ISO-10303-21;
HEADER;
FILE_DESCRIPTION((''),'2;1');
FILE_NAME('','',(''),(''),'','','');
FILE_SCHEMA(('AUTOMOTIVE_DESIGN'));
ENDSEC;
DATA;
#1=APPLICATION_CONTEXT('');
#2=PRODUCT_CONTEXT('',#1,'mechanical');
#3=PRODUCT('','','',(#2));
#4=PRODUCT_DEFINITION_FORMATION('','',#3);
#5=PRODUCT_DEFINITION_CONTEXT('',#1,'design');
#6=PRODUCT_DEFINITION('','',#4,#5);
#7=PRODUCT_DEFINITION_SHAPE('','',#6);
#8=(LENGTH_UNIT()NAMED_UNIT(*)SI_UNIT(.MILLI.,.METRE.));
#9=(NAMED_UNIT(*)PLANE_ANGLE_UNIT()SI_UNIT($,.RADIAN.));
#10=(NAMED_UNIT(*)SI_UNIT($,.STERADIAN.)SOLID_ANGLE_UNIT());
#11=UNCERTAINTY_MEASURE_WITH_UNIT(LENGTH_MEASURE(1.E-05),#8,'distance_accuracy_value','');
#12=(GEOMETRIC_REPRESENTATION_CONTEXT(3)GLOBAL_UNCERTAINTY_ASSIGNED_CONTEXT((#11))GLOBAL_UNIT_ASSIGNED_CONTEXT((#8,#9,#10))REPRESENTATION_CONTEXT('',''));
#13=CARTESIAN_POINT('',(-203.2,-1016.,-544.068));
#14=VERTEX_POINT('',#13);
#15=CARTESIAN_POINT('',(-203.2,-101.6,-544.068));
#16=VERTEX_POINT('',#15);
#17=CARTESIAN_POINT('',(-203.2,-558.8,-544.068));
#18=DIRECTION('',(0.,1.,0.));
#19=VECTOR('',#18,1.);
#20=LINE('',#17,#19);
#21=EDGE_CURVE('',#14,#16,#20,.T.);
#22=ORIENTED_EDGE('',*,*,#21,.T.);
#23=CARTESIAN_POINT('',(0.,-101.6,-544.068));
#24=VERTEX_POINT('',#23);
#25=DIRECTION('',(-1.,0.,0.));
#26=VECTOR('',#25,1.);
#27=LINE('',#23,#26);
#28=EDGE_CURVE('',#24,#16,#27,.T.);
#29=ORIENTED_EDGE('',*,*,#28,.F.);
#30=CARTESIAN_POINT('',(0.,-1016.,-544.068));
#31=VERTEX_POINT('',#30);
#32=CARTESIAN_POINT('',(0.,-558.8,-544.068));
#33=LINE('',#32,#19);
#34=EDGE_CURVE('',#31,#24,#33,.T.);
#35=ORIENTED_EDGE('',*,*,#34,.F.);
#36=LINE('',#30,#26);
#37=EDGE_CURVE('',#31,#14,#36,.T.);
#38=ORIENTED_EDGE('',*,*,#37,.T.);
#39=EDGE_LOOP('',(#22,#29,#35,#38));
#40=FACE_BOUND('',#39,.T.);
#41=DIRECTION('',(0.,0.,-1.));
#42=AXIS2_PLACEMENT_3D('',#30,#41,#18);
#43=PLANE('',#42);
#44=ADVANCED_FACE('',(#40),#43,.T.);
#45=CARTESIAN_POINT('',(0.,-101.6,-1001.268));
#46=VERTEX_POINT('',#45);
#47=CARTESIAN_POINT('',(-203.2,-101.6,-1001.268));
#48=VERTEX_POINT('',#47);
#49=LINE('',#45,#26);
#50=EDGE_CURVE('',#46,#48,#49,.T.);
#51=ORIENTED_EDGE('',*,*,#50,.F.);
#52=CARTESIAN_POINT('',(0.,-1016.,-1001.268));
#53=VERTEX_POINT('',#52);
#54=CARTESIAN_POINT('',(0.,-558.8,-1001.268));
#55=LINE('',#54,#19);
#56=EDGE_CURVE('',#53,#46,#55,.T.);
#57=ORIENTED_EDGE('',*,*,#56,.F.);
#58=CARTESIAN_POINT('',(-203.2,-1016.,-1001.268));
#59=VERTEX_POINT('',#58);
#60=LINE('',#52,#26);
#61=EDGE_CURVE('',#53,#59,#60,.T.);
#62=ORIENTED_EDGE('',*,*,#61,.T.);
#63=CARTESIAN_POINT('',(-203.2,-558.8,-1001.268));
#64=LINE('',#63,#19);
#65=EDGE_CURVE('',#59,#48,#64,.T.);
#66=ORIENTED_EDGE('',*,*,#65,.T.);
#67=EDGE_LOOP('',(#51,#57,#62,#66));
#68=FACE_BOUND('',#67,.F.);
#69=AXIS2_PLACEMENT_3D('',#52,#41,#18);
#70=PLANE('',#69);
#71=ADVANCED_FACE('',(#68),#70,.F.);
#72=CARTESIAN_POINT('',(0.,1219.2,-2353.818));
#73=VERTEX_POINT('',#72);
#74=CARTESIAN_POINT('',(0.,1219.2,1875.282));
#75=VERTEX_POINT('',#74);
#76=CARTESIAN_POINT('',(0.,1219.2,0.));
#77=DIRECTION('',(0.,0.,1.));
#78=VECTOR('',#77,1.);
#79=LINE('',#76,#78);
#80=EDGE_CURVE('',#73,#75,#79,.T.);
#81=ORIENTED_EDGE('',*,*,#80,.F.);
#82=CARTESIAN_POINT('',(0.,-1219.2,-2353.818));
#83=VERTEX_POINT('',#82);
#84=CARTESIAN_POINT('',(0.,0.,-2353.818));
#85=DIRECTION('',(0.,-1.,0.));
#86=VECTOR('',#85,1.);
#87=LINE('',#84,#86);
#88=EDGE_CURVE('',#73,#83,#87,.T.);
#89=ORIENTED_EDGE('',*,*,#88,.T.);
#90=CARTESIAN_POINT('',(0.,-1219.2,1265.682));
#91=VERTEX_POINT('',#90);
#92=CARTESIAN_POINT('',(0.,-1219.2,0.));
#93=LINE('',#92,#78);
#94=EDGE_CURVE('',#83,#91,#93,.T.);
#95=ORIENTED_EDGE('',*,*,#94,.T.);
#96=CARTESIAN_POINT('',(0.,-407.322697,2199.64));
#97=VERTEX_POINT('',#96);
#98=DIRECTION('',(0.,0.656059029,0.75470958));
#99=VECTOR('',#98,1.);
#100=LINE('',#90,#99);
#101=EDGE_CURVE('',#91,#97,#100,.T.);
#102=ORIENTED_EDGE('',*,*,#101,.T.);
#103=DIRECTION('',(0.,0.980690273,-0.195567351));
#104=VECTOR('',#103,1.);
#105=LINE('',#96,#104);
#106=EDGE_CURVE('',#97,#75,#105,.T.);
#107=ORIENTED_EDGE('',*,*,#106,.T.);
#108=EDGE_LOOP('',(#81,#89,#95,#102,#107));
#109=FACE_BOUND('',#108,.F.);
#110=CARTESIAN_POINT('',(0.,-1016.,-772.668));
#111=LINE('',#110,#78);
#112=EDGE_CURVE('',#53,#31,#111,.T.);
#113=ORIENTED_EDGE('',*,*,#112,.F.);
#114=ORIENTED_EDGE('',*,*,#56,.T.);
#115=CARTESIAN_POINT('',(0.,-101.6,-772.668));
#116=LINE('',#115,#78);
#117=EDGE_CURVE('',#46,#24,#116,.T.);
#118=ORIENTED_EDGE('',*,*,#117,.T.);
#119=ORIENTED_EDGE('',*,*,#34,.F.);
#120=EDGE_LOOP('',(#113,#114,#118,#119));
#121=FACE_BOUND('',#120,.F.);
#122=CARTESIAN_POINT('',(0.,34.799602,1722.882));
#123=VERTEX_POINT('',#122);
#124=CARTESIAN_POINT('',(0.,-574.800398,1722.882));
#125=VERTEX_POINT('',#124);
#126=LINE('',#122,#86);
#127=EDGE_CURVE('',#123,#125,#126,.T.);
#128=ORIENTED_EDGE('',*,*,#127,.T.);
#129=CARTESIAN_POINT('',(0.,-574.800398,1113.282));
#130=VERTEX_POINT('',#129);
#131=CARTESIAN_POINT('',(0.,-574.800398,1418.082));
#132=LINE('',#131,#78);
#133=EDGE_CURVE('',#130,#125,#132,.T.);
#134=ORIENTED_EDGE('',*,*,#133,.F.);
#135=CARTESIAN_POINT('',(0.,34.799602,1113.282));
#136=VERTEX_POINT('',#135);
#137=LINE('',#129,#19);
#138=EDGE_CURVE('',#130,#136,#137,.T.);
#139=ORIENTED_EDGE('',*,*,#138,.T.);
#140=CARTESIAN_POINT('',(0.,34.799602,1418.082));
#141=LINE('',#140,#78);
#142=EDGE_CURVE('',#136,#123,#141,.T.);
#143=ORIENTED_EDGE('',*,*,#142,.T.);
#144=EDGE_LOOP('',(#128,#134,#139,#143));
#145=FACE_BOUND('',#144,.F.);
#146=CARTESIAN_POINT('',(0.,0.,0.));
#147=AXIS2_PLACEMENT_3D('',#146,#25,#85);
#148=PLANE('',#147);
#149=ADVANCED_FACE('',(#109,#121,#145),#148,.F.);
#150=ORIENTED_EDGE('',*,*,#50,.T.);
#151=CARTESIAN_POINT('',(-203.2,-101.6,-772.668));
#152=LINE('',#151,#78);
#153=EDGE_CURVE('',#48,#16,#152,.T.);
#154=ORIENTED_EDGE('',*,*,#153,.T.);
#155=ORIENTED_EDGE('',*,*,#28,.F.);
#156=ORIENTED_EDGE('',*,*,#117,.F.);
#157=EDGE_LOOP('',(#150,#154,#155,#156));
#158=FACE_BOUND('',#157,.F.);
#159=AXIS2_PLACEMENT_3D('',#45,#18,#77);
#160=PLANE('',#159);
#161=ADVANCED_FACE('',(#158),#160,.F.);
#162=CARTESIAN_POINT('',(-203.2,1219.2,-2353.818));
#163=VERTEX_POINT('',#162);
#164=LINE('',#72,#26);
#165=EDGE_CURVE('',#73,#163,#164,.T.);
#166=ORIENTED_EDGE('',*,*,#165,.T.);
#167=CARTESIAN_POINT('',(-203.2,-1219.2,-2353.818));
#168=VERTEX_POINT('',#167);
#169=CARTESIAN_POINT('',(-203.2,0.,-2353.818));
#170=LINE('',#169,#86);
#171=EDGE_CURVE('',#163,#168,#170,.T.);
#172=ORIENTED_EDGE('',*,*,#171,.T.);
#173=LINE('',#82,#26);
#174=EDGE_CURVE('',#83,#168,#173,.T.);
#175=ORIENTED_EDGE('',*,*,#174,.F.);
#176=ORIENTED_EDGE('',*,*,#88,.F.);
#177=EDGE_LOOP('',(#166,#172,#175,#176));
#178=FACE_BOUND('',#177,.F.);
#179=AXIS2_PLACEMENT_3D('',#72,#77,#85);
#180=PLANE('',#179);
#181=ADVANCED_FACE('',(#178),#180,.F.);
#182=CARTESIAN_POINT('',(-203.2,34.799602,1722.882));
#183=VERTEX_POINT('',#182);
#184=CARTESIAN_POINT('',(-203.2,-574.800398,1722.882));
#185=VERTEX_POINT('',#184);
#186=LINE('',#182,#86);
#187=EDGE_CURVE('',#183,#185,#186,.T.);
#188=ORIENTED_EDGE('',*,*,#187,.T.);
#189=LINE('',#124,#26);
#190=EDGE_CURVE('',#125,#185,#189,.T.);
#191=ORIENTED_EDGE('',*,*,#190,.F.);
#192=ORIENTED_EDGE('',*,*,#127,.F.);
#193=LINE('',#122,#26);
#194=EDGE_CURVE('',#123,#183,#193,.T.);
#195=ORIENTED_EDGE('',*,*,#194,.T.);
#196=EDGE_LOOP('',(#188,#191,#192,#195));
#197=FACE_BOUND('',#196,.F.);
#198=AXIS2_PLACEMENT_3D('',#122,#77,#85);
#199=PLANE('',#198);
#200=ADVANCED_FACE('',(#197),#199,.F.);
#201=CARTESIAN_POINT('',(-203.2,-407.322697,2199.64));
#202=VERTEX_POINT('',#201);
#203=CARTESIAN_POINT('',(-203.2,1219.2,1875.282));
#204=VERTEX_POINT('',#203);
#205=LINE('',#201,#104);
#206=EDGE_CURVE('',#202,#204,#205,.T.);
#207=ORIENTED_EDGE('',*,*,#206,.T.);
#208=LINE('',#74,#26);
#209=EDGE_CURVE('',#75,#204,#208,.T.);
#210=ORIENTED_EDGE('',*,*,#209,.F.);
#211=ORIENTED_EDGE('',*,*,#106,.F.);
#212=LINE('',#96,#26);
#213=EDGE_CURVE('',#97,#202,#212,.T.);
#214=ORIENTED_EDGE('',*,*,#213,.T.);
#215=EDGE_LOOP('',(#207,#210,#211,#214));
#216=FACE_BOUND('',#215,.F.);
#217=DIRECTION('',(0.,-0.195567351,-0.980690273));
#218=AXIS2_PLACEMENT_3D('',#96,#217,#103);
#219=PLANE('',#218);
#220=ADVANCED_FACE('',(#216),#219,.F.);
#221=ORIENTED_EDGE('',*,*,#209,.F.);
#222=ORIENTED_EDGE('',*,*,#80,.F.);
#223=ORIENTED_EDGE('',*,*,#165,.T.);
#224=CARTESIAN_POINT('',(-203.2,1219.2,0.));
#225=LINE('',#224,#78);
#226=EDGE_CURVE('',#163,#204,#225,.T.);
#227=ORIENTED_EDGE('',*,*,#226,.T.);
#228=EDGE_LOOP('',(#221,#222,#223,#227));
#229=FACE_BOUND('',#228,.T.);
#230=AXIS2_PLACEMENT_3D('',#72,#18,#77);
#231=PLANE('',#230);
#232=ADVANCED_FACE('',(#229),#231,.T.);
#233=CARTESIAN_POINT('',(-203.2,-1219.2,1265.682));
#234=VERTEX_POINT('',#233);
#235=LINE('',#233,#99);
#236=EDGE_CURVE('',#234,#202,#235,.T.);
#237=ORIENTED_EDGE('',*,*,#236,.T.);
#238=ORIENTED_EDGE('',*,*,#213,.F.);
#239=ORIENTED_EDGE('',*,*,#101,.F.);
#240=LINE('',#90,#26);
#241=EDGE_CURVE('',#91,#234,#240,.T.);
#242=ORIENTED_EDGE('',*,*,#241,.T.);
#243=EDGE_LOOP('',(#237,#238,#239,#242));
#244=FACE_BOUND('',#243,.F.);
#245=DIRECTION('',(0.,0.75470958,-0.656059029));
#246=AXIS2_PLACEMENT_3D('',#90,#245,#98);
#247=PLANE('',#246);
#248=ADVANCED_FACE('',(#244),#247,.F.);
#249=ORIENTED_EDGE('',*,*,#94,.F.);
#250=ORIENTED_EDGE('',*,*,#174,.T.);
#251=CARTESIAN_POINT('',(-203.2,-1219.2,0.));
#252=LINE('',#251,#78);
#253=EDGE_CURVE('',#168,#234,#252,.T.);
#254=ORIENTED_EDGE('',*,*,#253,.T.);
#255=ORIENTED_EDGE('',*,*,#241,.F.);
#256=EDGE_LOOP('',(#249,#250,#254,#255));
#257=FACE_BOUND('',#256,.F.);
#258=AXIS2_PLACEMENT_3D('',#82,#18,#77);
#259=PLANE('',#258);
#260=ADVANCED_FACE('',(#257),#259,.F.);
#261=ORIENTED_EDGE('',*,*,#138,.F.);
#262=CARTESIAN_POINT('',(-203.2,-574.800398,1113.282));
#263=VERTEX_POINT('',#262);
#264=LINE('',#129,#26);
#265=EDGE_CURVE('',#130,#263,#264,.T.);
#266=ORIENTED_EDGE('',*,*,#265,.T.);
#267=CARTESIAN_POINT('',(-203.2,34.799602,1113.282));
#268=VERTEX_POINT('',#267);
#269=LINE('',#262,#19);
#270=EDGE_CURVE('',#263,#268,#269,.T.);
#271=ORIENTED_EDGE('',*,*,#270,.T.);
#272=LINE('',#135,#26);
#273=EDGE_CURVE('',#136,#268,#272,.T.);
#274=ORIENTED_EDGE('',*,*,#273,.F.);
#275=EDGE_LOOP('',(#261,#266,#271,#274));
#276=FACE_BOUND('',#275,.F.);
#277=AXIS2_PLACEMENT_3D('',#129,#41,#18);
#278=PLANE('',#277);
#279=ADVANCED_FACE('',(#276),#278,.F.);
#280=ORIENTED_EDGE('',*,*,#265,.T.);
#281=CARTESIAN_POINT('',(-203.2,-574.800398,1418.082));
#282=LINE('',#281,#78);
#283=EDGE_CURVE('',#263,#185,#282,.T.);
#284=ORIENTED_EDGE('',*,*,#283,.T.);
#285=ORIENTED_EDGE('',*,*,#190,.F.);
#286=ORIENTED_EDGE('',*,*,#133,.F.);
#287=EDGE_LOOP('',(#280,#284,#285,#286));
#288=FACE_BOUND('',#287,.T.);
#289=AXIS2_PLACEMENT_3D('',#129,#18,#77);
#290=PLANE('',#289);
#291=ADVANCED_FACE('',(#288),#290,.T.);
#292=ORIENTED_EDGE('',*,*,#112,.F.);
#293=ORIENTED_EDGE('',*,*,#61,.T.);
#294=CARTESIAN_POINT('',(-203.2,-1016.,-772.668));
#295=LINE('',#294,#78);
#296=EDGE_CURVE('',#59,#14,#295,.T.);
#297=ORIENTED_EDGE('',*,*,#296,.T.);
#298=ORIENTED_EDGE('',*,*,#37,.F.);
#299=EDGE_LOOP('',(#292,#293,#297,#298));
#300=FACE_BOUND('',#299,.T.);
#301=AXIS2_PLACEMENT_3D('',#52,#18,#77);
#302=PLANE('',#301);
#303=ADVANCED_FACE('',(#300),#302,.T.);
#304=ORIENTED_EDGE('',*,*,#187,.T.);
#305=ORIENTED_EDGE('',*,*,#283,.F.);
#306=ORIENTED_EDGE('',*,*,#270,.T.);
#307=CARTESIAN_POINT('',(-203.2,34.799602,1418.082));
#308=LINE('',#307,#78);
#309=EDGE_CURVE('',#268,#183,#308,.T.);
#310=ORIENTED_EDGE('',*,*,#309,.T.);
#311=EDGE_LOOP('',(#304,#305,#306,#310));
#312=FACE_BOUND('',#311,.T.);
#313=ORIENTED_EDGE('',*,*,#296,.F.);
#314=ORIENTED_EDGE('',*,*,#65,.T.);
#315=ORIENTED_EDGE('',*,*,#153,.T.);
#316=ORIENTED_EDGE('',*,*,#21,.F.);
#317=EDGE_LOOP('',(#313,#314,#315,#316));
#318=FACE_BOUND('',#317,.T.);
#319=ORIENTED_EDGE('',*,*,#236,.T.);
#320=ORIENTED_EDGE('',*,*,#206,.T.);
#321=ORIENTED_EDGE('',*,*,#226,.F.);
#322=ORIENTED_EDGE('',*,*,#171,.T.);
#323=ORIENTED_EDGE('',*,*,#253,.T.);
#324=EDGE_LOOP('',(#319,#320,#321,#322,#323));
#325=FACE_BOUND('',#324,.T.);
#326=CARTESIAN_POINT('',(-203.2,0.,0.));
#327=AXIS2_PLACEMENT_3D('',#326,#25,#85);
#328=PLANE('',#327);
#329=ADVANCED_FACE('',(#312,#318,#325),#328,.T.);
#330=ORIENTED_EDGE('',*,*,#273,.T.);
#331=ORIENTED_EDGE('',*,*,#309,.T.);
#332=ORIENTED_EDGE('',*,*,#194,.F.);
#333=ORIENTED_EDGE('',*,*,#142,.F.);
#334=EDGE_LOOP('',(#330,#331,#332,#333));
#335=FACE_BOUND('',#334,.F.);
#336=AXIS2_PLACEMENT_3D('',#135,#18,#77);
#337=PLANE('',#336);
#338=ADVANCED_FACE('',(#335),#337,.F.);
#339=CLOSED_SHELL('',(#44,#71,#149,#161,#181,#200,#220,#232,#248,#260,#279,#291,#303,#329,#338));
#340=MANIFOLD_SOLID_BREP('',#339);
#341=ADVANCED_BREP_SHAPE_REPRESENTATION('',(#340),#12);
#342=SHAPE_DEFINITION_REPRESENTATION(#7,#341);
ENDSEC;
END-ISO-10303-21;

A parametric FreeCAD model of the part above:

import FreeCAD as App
import Part
import Sketcher
Q = App.Units.Quantity

doc = App.newDocument("Part")
params = doc.addObject("Spreadsheet::Sheet", "Params")
for row, (alias, value) in enumerate([
    ("sketch1_width", "96 in"),
    ("sketch1_height", "185.34 in"),
    ("pad1_length", "8 in"),
    ("sketch2_width", "96 in"),
    ("sketch2_height", "18.84 in"),
    ("pocket1_length", "8 in"),
    ("sketch3_width", "36 in"),
    ("sketch3_height", "18 in"),
    ("pocket2_length", "8 in"),
    ("sketch4_width", "24 in"),
    ("pocket3_length", "8 in"),
], start=1):
    params.set(f"A{row}", alias)
    params.set(f"B{row}", "=" + value)
    params.setAlias(f"B{row}", alias)

body = doc.addObject("PartDesign::Body", "Body")

# Sketch on YZ plane
sketch1 = doc.addObject("Sketcher::SketchObject", "Sketch")
body.addObject(sketch1)
sketch1.AttachmentSupport = (doc.YZ_Plane, [""])
sketch1.MapMode = "FlatFace"
sketch1.addGeometry([
    Part.LineSegment(App.Vector(-1219, 2354, 0), App.Vector(-1219, -2354, 0)),
    Part.LineSegment(App.Vector(-1219, -2354, 0), App.Vector(1219, -2354, 0)),
    Part.LineSegment(App.Vector(1219, -2354, 0), App.Vector(1219, 2354, 0)),
    Part.LineSegment(App.Vector(1219, 2354, 0), App.Vector(-1219, 2354, 0)),
], False)
sketch1.addConstraint([
    Sketcher.Constraint("Coincident", 0, 2, 1, 1),
    Sketcher.Constraint("Coincident", 1, 2, 2, 1),
    Sketcher.Constraint("Coincident", 2, 2, 3, 1),
    Sketcher.Constraint("Coincident", 3, 2, 0, 1),
    Sketcher.Constraint("Vertical", 0),
    Sketcher.Constraint("Horizontal", 1),
    Sketcher.Constraint("Vertical", 2),
    Sketcher.Constraint("Horizontal", 3),
    Sketcher.Constraint("Symmetric", 0, 2, 2, 2, -1, 1),
    Sketcher.Constraint("DistanceX", 1, 1, 1, 2, Q("96 in")),
    Sketcher.Constraint("DistanceY", 0, 2, 0, 1, Q("185.34 in")),
])
sketch1.setExpression("Constraints[9]", "Params.sketch1_width")
sketch1.setExpression("Constraints[10]", "Params.sketch1_height")
pad1 = doc.addObject("PartDesign::Pad", "Pad")
body.addObject(pad1)
pad1.Profile = sketch1
pad1.setExpression("Length", "Params.pad1_length")
body2 = doc.addObject("PartDesign::Body", "Body001")
doc.recompute()

body.Placement = App.Placement(App.Vector(0, 0, 0), App.Rotation(App.Vector(0, 0, -1), 180))
boolean = doc.addObject("PartDesign::Boolean", "Boolean")
body2.addObject(boolean)
boolean.Type = "Fuse"
boolean.addObjects([body])

# Sketch on YZ plane
sketch2 = doc.addObject("Sketcher::SketchObject", "Sketch001")
body2.addObject(sketch2)
sketch2.AttachmentSupport = (doc.getObject("YZ_Plane001"), [""])
sketch2.MapMode = "FlatFace"
sketch2.addGeometry([
    Part.LineSegment(App.Vector(-1219, 1266, 0), App.Vector(-407, 2200, 0)),  # 0
    Part.LineSegment(App.Vector(-407, 2200, 0), App.Vector(1219, 1875, 0)),  # 1
    Part.LineSegment(App.Vector(1219, 1875, 0), App.Vector(1219, 2354, 0)),  # 2
    Part.LineSegment(App.Vector(1219, 2354, 0), App.Vector(-1219, 2354, 0)),  # 3
    Part.LineSegment(App.Vector(-1219, 2354, 0), App.Vector(-1219, 1266, 0)),  # 4
], False)
sketch2.addConstraint([
    Sketcher.Constraint("Coincident", 0, 2, 1, 1),
    Sketcher.Constraint("Coincident", 1, 2, 2, 1),
    Sketcher.Constraint("Coincident", 2, 2, 3, 1),
    Sketcher.Constraint("Coincident", 3, 2, 4, 1),
    Sketcher.Constraint("Coincident", 4, 2, 0, 1),
    Sketcher.Constraint("Vertical", 2),
    Sketcher.Constraint("Horizontal", 3),
    Sketcher.Constraint("Vertical", 4),
    Sketcher.Constraint("DistanceX", 3, 2, 3, 1, Q("96 in")),
    Sketcher.Constraint("DistanceX", -1, 1, 1, 2, Q("48 in")),
    Sketcher.Constraint("Angle", 0, Q("49 deg")),
    Sketcher.Constraint("DistanceY", 4, 2, 1, 2, Q("24 in")),
    Sketcher.Constraint("DistanceY", 2, 1, 2, 2, Q("18.84 in")),
    Sketcher.Constraint("DistanceY", -1, 1, 0, 2, Q("86.6 in")),
    Sketcher.Constraint("DistanceY", -1, 1, 1, 2, Q("73.83 in")),
])
sketch2.setExpression("Constraints[8]", "Params.sketch2_width")
sketch2.setExpression("Constraints[12]", "Params.sketch2_height")
pocket1 = doc.addObject("PartDesign::Pocket", "Pocket")
body2.addObject(pocket1)
pocket1.Profile = sketch2
pocket1.setExpression("Length", "Params.pocket1_length")

# Sketch on YZ plane
sketch3 = doc.addObject("Sketcher::SketchObject", "Sketch002")
body2.addObject(sketch3)
sketch3.AttachmentSupport = (doc.getObject("YZ_Plane001"), [""])
sketch3.MapMode = "FlatFace"
sketch3.addGeometry([
    Part.LineSegment(App.Vector(-1016, -544, 0), App.Vector(-1016, -1001, 0)),
    Part.LineSegment(App.Vector(-1016, -1001, 0), App.Vector(-102, -1001, 0)),
    Part.LineSegment(App.Vector(-102, -1001, 0), App.Vector(-102, -544, 0)),
    Part.LineSegment(App.Vector(-102, -544, 0), App.Vector(-1016, -544, 0)),
], False)
sketch3.addConstraint([
    Sketcher.Constraint("Coincident", 0, 2, 1, 1),
    Sketcher.Constraint("Coincident", 1, 2, 2, 1),
    Sketcher.Constraint("Coincident", 2, 2, 3, 1),
    Sketcher.Constraint("Coincident", 3, 2, 0, 1),
    Sketcher.Constraint("Vertical", 0),
    Sketcher.Constraint("Horizontal", 1),
    Sketcher.Constraint("Vertical", 2),
    Sketcher.Constraint("Horizontal", 3),
    Sketcher.Constraint("DistanceX", 1, 1, 1, 2, Q("36 in")),
    Sketcher.Constraint("DistanceY", 0, 2, 0, 1, Q("18 in")),
    Sketcher.Constraint("DistanceX", 0, 2, -1, 1, Q("40 in")),
    Sketcher.Constraint("DistanceY", 0, 2, -1, 1, Q("39.42 in")),
])
sketch3.setExpression("Constraints[8]", "Params.sketch3_width")
sketch3.setExpression("Constraints[9]", "Params.sketch3_height")
pocket2 = doc.addObject("PartDesign::Pocket", "Pocket001")
body2.addObject(pocket2)
pocket2.Profile = sketch3
pocket2.setExpression("Length", "Params.pocket2_length")

# Sketch on YZ plane
sketch4 = doc.addObject("Sketcher::SketchObject", "Sketch003")
body2.addObject(sketch4)
sketch4.AttachmentSupport = (doc.getObject("YZ_Plane001"), [""])
sketch4.MapMode = "FlatFace"
sketch4.addGeometry([
    Part.LineSegment(App.Vector(-575, 1723, 0), App.Vector(-575, 1113, 0)),
    Part.LineSegment(App.Vector(-575, 1113, 0), App.Vector(35, 1113, 0)),
    Part.LineSegment(App.Vector(35, 1113, 0), App.Vector(35, 1723, 0)),
    Part.LineSegment(App.Vector(35, 1723, 0), App.Vector(-575, 1723, 0)),
], False)
sketch4.addConstraint([
    Sketcher.Constraint("Coincident", 0, 2, 1, 1),
    Sketcher.Constraint("Coincident", 1, 2, 2, 1),
    Sketcher.Constraint("Coincident", 2, 2, 3, 1),
    Sketcher.Constraint("Coincident", 3, 2, 0, 1),
    Sketcher.Constraint("Vertical", 0),
    Sketcher.Constraint("Horizontal", 1),
    Sketcher.Constraint("Vertical", 2),
    Sketcher.Constraint("Horizontal", 3),
    Sketcher.Constraint("Equal", 3, 0),
    Sketcher.Constraint("DistanceX", 1, 1, 1, 2, Q("24 in")),
    Sketcher.Constraint("DistanceY", -1, 1, 0, 2, Q("43.83 in")),
    Sketcher.Constraint("DistanceX", 0, 2, -1, 1, Q("574.800398 mm")),
])
sketch4.setExpression("Constraints[9]", "Params.sketch4_width")
pocket3 = doc.addObject("PartDesign::Pocket", "Pocket002")
body2.addObject(pocket3)
pocket3.Profile = sketch4
pocket3.setExpression("Length", "Params.pocket3_length")

doc.recompute()
